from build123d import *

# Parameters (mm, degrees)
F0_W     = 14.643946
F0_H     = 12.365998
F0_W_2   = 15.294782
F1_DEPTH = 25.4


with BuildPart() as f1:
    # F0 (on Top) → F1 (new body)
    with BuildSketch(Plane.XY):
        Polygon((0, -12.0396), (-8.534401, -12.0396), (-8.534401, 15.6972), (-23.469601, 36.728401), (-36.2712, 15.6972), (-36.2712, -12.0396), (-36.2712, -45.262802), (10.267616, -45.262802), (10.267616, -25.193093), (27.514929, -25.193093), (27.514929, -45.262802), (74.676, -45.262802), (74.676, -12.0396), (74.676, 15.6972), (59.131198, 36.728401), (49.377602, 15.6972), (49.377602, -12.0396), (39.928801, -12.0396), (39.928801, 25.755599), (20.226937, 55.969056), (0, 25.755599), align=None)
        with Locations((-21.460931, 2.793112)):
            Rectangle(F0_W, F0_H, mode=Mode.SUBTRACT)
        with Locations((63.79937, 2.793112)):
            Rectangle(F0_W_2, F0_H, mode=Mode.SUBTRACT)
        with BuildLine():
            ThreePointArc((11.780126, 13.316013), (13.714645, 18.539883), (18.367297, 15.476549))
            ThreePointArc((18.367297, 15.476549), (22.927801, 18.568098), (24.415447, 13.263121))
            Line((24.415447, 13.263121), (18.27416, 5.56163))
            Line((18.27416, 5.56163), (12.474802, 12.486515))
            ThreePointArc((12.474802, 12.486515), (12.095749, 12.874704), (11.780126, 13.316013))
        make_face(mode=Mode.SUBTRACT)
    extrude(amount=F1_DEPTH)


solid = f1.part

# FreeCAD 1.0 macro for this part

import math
import FreeCAD as App
import Part
import Sketcher
Q = App.Units.Quantity


def add_polygon(sketch, points):
    """Adds a closed chain of lines whose ends are joined by coincident constraints."""
    first, n = sketch.GeometryCount, len(points)
    for a, b in zip(points, points[1:] + points[:1]):
        sketch.addGeometry(Part.LineSegment(App.Vector(*a, 0), App.Vector(*b, 0)), False)
    for i in range(n):
        sketch.addConstraint(Sketcher.Constraint("Coincident", first + i, 2, first + (i + 1) % n, 1))

doc = App.newDocument("Part")
params = doc.addObject("Spreadsheet::Sheet", "Params")
for row, (alias, value) in enumerate([
    ("sketch1_height", "2.4000001 in"),
    ("sketch1_width", "0.336 in"),
    ("sketch1_width2", "0.372 in"),
    ("sketch1_height2", "1.092 in"),
    ("sketch1_height3", "1.488 in"),
    ("pad1_length", "1 in"),
], start=1):
    params.set(f"A{row}", alias)
    params.set(f"B{row}", "=" + value)
    params.setAlias(f"B{row}", alias)

body = doc.addObject("PartDesign::Body", "Body")

# Sketch on XY plane
sketch1 = body.newObject("Sketcher::SketchObject", "Sketch")
sketch1.AttachmentSupport = (doc.getObject("XY_Plane"), [""])
sketch1.MapMode = "FlatFace"
add_polygon(sketch1, [(0, -12), (-8.5, -12), (-8.5, 15.7), (-23.5, 36.7), (-36.3, 15.7), (-36.3, -45.3), (10.3, -45.3), (10.3, -25.2), (27.5, -25.2), (27.5, -45.3), (74.7, -45.3), (74.7, 15.7), (59.1, 36.7), (49.4, 15.7), (49.4, -12), (39.9, -12), (39.9, 25.8), (20.2, 56), (0, 25.8)])  # lines 0-18
add_polygon(sketch1, [(-14.1, -3.4), (-28.8, -3.4), (-28.8, 9), (-14.1, 9)])  # lines 19-22
add_polygon(sketch1, [(71.4, -3.4), (56.2, -3.4), (56.2, 9), (71.4, 9)])  # lines 23-26
sketch1.addGeometry(Part.ArcOfCircle(Part.Circle(App.Vector(14.8, 15.2, 0), App.Vector(0, 0, 1), 3.6), math.radians(-148.8), math.radians(-131.31)), False)  # 27
sketch1.addGeometry(Part.ArcOfCircle(Part.Circle(App.Vector(14.8, 15.2, 0), App.Vector(0, 0, 1), 3.6), math.radians(5), math.radians(211)), False)  # 28
sketch1.addGeometry(Part.ArcOfCircle(Part.Circle(App.Vector(21.8, 15.4, 0), App.Vector(0, 0, 1), 3.4), math.radians(-39), math.radians(178)), False)  # 29
sketch1.addGeometry(Part.LineSegment(App.Vector(24.4, 13.3, 0), App.Vector(18.3, 5.6, 0)), False)  # 30
sketch1.addGeometry(Part.LineSegment(App.Vector(18.3, 5.6, 0), App.Vector(12.5, 12.5, 0)), False)  # 31
sketch1.addConstraint([
    Sketcher.Constraint("Tangent", 27, 1, 28, 2),
    Sketcher.Constraint("Coincident", 28, 1, 29, 2),
    Sketcher.Constraint("Tangent", 29, 1, 30, 1),
    Sketcher.Constraint("Coincident", 30, 2, 31, 1),
    Sketcher.Constraint("Coincident", 31, 2, 27, 2),
    Sketcher.Constraint("Horizontal", 0),
    Sketcher.Constraint("Vertical", 1),
    Sketcher.Constraint("Vertical", 4),
    Sketcher.Constraint("Horizontal", 5),
    Sketcher.Constraint("Vertical", 6),
    Sketcher.Constraint("Horizontal", 7),
    Sketcher.Constraint("Vertical", 8),
    Sketcher.Constraint("Horizontal", 9),
    Sketcher.Constraint("Vertical", 10),
    Sketcher.Constraint("Vertical", 13),
    Sketcher.Constraint("Horizontal", 14),
    Sketcher.Constraint("Vertical", 15),
    Sketcher.Constraint("Vertical", 18),
    Sketcher.Constraint("Horizontal", 19),
    Sketcher.Constraint("Vertical", 20),
    Sketcher.Constraint("Horizontal", 21),
    Sketcher.Constraint("Vertical", 22),
    Sketcher.Constraint("Horizontal", 23),
    Sketcher.Constraint("Vertical", 24),
    Sketcher.Constraint("Horizontal", 25),
    Sketcher.Constraint("Vertical", 26),
    Sketcher.Constraint("PointOnObject", 17, 2, -2),
    Sketcher.Constraint("Horizontal", 1, 2, 3, 2),
    Sketcher.Constraint("Horizontal", 5, 2, 8, 2),
    Sketcher.Constraint("Horizontal", 3, 2, 10, 2),
    Sketcher.Constraint("Horizontal", 2, 2, 11, 2),
    Sketcher.Constraint("Horizontal", 10, 2, 12, 2),
    Sketcher.Constraint("Horizontal", 0, 2, 13, 2),
    Sketcher.Constraint("Horizontal", 15, 2, 17, 2),
    Sketcher.Constraint("Horizontal", 22, 2, 23, 2),
    Sketcher.Constraint("Horizontal", 21, 2, 24, 2),
    Sketcher.Constraint("DistanceY", 4, 2, 4, 1, Q("2.4000001 in")),
    Sketcher.Constraint("DistanceX", 0, 2, 0, 1, Q("0.336 in")),
    Sketcher.Constraint("DistanceX", 14, 2, 14, 1, Q("0.372 in")),
    Sketcher.Constraint("DistanceY", 1, 1, 1, 2, Q("1.092 in")),
    Sketcher.Constraint("DistanceY", 15, 1, 15, 2, Q("1.488 in")),
    Sketcher.Constraint("DistanceX", -1, 1, 9, 2, Q("2.94 in")),
    Sketcher.Constraint("Radius", 27, Q("3.558002 mm")),
    Sketcher.Constraint("DistanceY", 0, 2, 2, 2, Q("1.92 in")),
    Sketcher.Constraint("DistanceY", 0, 2, -1, 1, Q("0.474 in")),
    Sketcher.Constraint("DistanceX", 2, 2, -1, 1, Q("0.924 in")),
    Sketcher.Constraint("DistanceX", 3, 2, -1, 1, Q("1.428 in")),
    Sketcher.Constraint("DistanceX", -1, 1, 11, 2, Q("2.3279999 in")),
    Sketcher.Constraint("DistanceX", -1, 1, 12, 2, Q("1.9440001 in")),
    Sketcher.Constraint("Radius", 28, Q("3.557976 mm")),
    Sketcher.Constraint("Radius", 29, Q("3.395076 mm")),
    Sketcher.Constraint("DistanceX", 9, 1, 9, 2, Q("47.161071 mm")),
    Sketcher.Constraint("DistanceX", 23, 2, 23, 1, Q("15.294782 mm")),
    Sketcher.Constraint("DistanceY", 6, 1, 6, 2, Q("20.069709 mm")),
    Sketcher.Constraint("DistanceY", 27, 1, 28, 3, Q("1.843099 mm")),
    Sketcher.Constraint("DistanceY", 29, 1, 29, 3, Q("2.116701 mm")),
    Sketcher.Constraint("DistanceY", 31, 2, 27, 1, Q("0.829498 mm")),
    Sketcher.Constraint("Distance", 17, Q("36.35907 mm")),
    Sketcher.Constraint("Distance", 31, Q("9.032529 mm")),
    Sketcher.Constraint("DistanceX", 5, 1, 5, 2, Q("46.538816 mm")),
    Sketcher.Constraint("DistanceX", 19, 2, 19, 1, Q("14.643946 mm")),
    Sketcher.Constraint("DistanceY", 20, 1, 20, 2, Q("12.365998 mm")),
    Sketcher.Constraint("DistanceX", -1, 1, 27, 3, Q("14.82353 mm")),
    Sketcher.Constraint("DistanceY", -1, 1, 28, 3, Q("15.159112 mm")),
    Sketcher.Constraint("DistanceY", -1, 1, 20, 2, Q("8.976111 mm")),
    Sketcher.Constraint("DistanceX", -1, 1, 23, 2, Q("56.151979 mm")),
    Sketcher.Constraint("DistanceY", -1, 1, 28, 1, Q("15.476549 mm")),
    Sketcher.Constraint("DistanceY", -1, 1, 29, 1, Q("13.263121 mm")),
    Sketcher.Constraint("DistanceY", 27, 3, 16, 2, Q("40.809929 mm")),
    Sketcher.Constraint("DistanceX", 19, 2, -1, 1, Q("28.782904 mm")),
])
sketch1.setExpression("Constraints[63]", "Params.sketch1_height")
sketch1.setExpression("Constraints[64]", "Params.sketch1_width")
sketch1.setExpression("Constraints[65]", "Params.sketch1_width2")
sketch1.setExpression("Constraints[66]", "Params.sketch1_height2")
sketch1.setExpression("Constraints[67]", "Params.sketch1_height3")
pad1 = body.newObject("PartDesign::Pad", "Pad")
pad1.Profile = sketch1
pad1.setExpression("Length", "Params.pad1_length")

doc.recompute()
